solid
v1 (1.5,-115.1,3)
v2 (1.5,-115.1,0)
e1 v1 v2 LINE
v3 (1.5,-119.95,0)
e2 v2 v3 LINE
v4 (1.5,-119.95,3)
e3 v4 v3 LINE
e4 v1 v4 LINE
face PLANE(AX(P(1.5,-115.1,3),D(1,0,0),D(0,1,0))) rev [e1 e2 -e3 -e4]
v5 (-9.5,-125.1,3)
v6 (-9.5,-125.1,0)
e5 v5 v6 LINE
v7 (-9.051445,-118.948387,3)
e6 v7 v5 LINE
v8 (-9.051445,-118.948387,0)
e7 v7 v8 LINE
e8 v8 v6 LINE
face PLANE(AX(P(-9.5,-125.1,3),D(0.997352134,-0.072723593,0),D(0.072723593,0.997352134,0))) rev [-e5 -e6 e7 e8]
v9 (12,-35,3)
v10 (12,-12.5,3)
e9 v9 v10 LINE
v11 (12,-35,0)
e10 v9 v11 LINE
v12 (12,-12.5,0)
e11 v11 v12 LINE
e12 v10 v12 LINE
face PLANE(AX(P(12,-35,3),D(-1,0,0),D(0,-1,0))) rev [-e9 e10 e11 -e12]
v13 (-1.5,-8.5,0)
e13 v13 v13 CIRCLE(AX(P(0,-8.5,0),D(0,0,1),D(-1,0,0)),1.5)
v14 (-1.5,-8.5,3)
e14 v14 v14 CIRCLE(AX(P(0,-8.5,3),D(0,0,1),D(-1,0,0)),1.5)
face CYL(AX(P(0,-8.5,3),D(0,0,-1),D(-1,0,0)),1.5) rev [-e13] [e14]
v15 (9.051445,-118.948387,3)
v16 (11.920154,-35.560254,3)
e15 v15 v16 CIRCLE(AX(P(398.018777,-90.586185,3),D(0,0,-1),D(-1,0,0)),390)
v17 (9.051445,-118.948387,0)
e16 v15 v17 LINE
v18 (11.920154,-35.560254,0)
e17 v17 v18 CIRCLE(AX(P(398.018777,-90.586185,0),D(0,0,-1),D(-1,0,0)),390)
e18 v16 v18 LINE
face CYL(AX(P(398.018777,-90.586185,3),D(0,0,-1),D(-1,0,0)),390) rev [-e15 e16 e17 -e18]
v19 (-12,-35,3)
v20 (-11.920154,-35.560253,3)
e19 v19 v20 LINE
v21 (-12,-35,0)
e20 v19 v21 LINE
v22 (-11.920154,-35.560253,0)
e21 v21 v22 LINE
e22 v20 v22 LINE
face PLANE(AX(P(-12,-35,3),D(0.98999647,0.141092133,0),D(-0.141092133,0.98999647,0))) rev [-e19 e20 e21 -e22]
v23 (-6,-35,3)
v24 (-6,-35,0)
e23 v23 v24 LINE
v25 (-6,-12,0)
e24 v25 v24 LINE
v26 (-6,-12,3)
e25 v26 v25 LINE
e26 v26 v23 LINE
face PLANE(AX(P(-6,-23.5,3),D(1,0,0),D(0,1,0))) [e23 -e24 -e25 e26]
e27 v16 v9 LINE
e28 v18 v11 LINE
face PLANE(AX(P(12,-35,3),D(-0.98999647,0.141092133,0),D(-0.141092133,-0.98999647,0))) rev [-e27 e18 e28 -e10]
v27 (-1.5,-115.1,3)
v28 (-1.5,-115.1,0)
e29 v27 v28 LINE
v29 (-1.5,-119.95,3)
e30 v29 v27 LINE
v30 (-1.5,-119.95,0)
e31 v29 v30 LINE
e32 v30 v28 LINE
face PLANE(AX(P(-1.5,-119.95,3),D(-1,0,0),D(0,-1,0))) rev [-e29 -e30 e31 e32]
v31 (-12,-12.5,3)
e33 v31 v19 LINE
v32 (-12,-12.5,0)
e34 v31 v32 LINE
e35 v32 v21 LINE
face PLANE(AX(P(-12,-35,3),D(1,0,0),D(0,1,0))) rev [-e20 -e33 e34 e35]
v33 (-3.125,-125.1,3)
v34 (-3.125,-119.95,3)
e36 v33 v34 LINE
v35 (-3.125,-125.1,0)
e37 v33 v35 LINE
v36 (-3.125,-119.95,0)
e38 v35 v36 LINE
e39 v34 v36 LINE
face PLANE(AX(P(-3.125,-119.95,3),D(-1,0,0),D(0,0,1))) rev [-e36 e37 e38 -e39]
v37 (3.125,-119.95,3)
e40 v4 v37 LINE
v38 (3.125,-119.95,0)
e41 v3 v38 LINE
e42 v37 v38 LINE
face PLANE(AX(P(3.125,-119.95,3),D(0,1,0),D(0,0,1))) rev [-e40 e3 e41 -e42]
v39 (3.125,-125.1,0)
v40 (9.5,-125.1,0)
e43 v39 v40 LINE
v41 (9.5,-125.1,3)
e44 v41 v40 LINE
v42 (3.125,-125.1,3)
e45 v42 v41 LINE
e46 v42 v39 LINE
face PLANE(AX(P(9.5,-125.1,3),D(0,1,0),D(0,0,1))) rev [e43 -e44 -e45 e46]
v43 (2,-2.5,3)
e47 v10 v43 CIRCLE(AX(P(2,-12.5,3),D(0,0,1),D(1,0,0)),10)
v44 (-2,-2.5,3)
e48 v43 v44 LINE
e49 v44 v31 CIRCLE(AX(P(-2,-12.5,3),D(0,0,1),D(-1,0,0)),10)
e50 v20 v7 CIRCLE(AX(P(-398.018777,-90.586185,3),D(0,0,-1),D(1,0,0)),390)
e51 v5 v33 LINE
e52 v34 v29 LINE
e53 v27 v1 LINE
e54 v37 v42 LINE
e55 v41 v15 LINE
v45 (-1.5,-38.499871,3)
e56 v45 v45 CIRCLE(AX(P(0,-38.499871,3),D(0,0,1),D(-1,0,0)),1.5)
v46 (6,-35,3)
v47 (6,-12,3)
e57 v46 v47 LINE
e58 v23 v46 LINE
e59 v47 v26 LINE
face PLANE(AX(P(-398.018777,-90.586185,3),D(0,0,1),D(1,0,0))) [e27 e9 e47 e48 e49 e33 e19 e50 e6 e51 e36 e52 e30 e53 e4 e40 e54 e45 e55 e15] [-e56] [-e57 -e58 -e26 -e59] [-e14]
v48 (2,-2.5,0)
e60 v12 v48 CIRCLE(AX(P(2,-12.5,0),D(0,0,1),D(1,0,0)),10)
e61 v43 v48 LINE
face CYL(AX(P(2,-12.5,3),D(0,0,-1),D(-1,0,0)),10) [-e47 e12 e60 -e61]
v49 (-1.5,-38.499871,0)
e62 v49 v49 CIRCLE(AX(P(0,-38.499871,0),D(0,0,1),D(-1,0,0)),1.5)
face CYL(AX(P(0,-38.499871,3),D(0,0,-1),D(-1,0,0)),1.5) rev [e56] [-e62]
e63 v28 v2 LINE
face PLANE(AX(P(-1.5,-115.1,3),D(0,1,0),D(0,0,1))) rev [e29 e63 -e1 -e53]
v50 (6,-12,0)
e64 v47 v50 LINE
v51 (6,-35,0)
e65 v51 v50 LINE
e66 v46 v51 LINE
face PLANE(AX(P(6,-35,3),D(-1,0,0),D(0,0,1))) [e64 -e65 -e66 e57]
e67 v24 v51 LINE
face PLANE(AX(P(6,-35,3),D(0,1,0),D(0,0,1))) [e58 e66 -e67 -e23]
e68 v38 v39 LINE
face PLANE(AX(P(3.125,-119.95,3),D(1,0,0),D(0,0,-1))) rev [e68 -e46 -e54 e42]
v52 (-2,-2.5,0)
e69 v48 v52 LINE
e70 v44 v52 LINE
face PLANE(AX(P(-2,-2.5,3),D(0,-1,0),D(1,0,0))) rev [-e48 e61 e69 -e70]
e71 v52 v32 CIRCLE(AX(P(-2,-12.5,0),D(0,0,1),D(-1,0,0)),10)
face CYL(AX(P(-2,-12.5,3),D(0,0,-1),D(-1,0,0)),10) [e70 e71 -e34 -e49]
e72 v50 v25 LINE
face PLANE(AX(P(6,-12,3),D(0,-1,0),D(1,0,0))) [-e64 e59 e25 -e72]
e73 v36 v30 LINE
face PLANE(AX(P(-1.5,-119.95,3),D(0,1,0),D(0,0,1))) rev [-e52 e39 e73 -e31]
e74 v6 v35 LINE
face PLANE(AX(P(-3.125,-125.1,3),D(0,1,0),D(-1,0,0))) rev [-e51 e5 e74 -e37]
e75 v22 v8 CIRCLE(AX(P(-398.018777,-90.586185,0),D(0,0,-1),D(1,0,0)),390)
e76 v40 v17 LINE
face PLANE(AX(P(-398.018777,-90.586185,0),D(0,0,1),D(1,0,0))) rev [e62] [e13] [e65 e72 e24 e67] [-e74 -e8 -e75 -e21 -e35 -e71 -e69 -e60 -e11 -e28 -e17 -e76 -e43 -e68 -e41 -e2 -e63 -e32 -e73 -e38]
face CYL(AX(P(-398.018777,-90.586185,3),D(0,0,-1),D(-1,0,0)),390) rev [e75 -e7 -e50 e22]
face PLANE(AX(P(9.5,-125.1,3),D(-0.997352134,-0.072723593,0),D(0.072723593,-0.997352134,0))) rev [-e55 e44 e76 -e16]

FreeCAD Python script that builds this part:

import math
import FreeCAD as App
import Part
import Sketcher

doc = App.newDocument("Part")
body = doc.addObject("PartDesign::Body", "Body")

# Sketch on XY plane
sketch1 = body.newObject("Sketcher::SketchObject", "Sketch")
sketch1.AttachmentSupport = (doc.getObject("XY_Plane"), [""])
sketch1.MapMode = "FlatFace"
sketch1.addGeometry([
    Part.LineSegment(App.Vector(3.125, -119.95, 0), App.Vector(3.125, -125.1, 0)),  # 0
    Part.LineSegment(App.Vector(3.125, -125.1, 0), App.Vector(9.5, -125.1, 0)),  # 1
    Part.LineSegment(App.Vector(9.5, -125.1, 0), App.Vector(9.051445, -118.948387, 0)),  # 2
    Part.ArcOfCircle(Part.Circle(App.Vector(398.018777, -90.586185, 0), App.Vector(0, 0, 1), 390), math.radians(171.888952), math.radians(184.170437)),  # 3
    Part.LineSegment(App.Vector(11.920154, -35.560254, 0), App.Vector(12, -35, 0)),  # 4
    Part.LineSegment(App.Vector(12, -35, 0), App.Vector(12, -12.5, 0)),  # 5
    Part.ArcOfCircle(Part.Circle(App.Vector(2, -12.5, 0), App.Vector(0, 0, 1), 10), math.radians(0), math.radians(90)),  # 6
    Part.LineSegment(App.Vector(2, -2.5, 0), App.Vector(-2, -2.5, 0)),  # 7
    Part.ArcOfCircle(Part.Circle(App.Vector(-2, -12.5, 0), App.Vector(0, 0, 1), 10), math.radians(90), math.radians(180)),  # 8
    Part.LineSegment(App.Vector(-12, -12.5, 0), App.Vector(-12, -35, 0)),  # 9
    Part.LineSegment(App.Vector(-12, -35, 0), App.Vector(-11.920154, -35.560253, 0)),  # 10
    Part.ArcOfCircle(Part.Circle(App.Vector(-398.018777, -90.586185, 0), App.Vector(0, 0, 1), 390), math.radians(-4.170437), math.radians(8.111048)),  # 11
    Part.LineSegment(App.Vector(-9.051445, -118.948387, 0), App.Vector(-9.5, -125.1, 0)),  # 12
    Part.LineSegment(App.Vector(-9.5, -125.1, 0), App.Vector(-3.125, -125.1, 0)),  # 13
    Part.LineSegment(App.Vector(-3.125, -125.1, 0), App.Vector(-3.125, -119.95, 0)),  # 14
    Part.LineSegment(App.Vector(-3.125, -119.95, 0), App.Vector(-1.5, -119.95, 0)),  # 15
    Part.LineSegment(App.Vector(-1.5, -119.95, 0), App.Vector(-1.5, -115.1, 0)),  # 16
    Part.LineSegment(App.Vector(-1.5, -115.1, 0), App.Vector(1.5, -115.1, 0)),  # 17
    Part.LineSegment(App.Vector(1.5, -115.1, 0), App.Vector(1.5, -119.95, 0)),  # 18
    Part.LineSegment(App.Vector(1.5, -119.95, 0), App.Vector(3.125, -119.95, 0)),  # 19
    Part.Circle(App.Vector(0, -38.499871, 0), App.Vector(0, 0, 1), 1.5),  # 20
    Part.LineSegment(App.Vector(-6, -35, 0), App.Vector(-6, -12, 0)),  # 21
    Part.LineSegment(App.Vector(-6, -12, 0), App.Vector(6, -12, 0)),  # 22
    Part.LineSegment(App.Vector(6, -12, 0), App.Vector(6, -35, 0)),  # 23
    Part.LineSegment(App.Vector(6, -35, 0), App.Vector(-6, -35, 0)),  # 24
    Part.Circle(App.Vector(0, -8.5, 0), App.Vector(0, 0, 1), 1.5),  # 25
], False)
sketch1.addConstraint([
    Sketcher.Constraint("Coincident", 0, 2, 1, 1),
    Sketcher.Constraint("Coincident", 1, 2, 2, 1),
    Sketcher.Constraint("Tangent", 2, 2, 3, 2),
    Sketcher.Constraint("Tangent", 3, 1, 4, 1),
    Sketcher.Constraint("Coincident", 4, 2, 5, 1),
    Sketcher.Constraint("Tangent", 5, 2, 6, 1),
    Sketcher.Constraint("Tangent", 6, 2, 7, 1),
    Sketcher.Constraint("Tangent", 7, 2, 8, 1),
    Sketcher.Constraint("Tangent", 8, 2, 9, 1),
    Sketcher.Constraint("Coincident", 9, 2, 10, 1),
    Sketcher.Constraint("Tangent", 10, 2, 11, 2),
    Sketcher.Constraint("Tangent", 11, 1, 12, 1),
    Sketcher.Constraint("Coincident", 12, 2, 13, 1),
    Sketcher.Constraint("Coincident", 13, 2, 14, 1),
    Sketcher.Constraint("Coincident", 14, 2, 15, 1),
    Sketcher.Constraint("Coincident", 15, 2, 16, 1),
    Sketcher.Constraint("Coincident", 16, 2, 17, 1),
    Sketcher.Constraint("Coincident", 17, 2, 18, 1),
    Sketcher.Constraint("Coincident", 18, 2, 19, 1),
    Sketcher.Constraint("Coincident", 19, 2, 0, 1),
    Sketcher.Constraint("Coincident", 21, 2, 22, 1),
    Sketcher.Constraint("Coincident", 22, 2, 23, 1),
    Sketcher.Constraint("Coincident", 23, 2, 24, 1),
    Sketcher.Constraint("Coincident", 24, 2, 21, 1),
    Sketcher.Constraint("Vertical", 0),
    Sketcher.Constraint("Horizontal", 1),
    Sketcher.Constraint("Vertical", 5),
    Sketcher.Constraint("Horizontal", 7),
    Sketcher.Constraint("Vertical", 9),
    Sketcher.Constraint("Horizontal", 13),
    Sketcher.Constraint("Vertical", 14),
    Sketcher.Constraint("Horizontal", 15),
    Sketcher.Constraint("Vertical", 16),
    Sketcher.Constraint("Horizontal", 17),
    Sketcher.Constraint("Vertical", 18),
    Sketcher.Constraint("Horizontal", 19),
    Sketcher.Constraint("Vertical", 21),
    Sketcher.Constraint("Horizontal", 22),
    Sketcher.Constraint("Vertical", 23),
    Sketcher.Constraint("Horizontal", 24),
    Sketcher.Constraint("Equal", 6, 8),
    Sketcher.Constraint("Equal", 3, 11),
    Sketcher.Constraint("Equal", 20, 25),
    Sketcher.Constraint("Symmetric", 3, 3, 11, 3, -2),
    Sketcher.Constraint("Symmetric", 4, 2, 9, 2, -2),
    Sketcher.Constraint("Symmetric", 1, 2, 12, 2, -2),
    Sketcher.Constraint("Symmetric", 15, 2, 18, 2, -2),
    Sketcher.Constraint("PointOnObject", 20, 3, -2),
    Sketcher.Constraint("PointOnObject", 25, 3, -2),
    Sketcher.Constraint("Horizontal", 9, 2, 23, 2),
    Sketcher.Constraint("Equal", 1, 13),
    Sketcher.Constraint("Diameter", 20, 3.0),
    Sketcher.Constraint("Radius", 3, 390.0),
    Sketcher.Constraint("Radius", 6, 10.0),
    Sketcher.Constraint("DistanceX", 7, 2, 7, 1, 4.0),
    Sketcher.Constraint("DistanceX", 17, 1, 17, 2, 3.0),
    Sketcher.Constraint("DistanceX", 22, 1, 22, 2, 12.0),
    Sketcher.Constraint("DistanceY", 21, 1, 21, 2, 23.0),
    Sketcher.Constraint("DistanceY", 5, 1, 5, 2, 22.5),
    Sketcher.Constraint("DistanceY", 4, 2, -1, 1, 35.0),
    Sketcher.Constraint("DistanceX", 21, 2, -1, 1, 6.0),
    Sketcher.Constraint("DistanceY", 6, 3, 25, 3, 4.0),
    Sketcher.Constraint("DistanceX", 12, 2, 1, 2, 19.0),
    Sketcher.Constraint("DistanceY", 13, 2, 16, 2, 10.0),
    Sketcher.Constraint("DistanceY", 0, 2, 0, 1, 5.15),
    Sketcher.Constraint("DistanceY", 0, 2, -1, 1, 125.1),
    Sketcher.Constraint("DistanceX", 1, 1, 1, 2, 6.375),
    Sketcher.Constraint("DistanceY", 20, 3, -1, 1, 38.499871),
    Sketcher.Constraint("DistanceX", 11, 1, 2, 2, 18.10289),
    Sketcher.Constraint("DistanceX", 10, 2, 11, 1, 2.868709),
])
pad1 = body.newObject("PartDesign::Pad", "Pad")
pad1.Profile = sketch1
pad1.Length = 3

doc.recompute()
